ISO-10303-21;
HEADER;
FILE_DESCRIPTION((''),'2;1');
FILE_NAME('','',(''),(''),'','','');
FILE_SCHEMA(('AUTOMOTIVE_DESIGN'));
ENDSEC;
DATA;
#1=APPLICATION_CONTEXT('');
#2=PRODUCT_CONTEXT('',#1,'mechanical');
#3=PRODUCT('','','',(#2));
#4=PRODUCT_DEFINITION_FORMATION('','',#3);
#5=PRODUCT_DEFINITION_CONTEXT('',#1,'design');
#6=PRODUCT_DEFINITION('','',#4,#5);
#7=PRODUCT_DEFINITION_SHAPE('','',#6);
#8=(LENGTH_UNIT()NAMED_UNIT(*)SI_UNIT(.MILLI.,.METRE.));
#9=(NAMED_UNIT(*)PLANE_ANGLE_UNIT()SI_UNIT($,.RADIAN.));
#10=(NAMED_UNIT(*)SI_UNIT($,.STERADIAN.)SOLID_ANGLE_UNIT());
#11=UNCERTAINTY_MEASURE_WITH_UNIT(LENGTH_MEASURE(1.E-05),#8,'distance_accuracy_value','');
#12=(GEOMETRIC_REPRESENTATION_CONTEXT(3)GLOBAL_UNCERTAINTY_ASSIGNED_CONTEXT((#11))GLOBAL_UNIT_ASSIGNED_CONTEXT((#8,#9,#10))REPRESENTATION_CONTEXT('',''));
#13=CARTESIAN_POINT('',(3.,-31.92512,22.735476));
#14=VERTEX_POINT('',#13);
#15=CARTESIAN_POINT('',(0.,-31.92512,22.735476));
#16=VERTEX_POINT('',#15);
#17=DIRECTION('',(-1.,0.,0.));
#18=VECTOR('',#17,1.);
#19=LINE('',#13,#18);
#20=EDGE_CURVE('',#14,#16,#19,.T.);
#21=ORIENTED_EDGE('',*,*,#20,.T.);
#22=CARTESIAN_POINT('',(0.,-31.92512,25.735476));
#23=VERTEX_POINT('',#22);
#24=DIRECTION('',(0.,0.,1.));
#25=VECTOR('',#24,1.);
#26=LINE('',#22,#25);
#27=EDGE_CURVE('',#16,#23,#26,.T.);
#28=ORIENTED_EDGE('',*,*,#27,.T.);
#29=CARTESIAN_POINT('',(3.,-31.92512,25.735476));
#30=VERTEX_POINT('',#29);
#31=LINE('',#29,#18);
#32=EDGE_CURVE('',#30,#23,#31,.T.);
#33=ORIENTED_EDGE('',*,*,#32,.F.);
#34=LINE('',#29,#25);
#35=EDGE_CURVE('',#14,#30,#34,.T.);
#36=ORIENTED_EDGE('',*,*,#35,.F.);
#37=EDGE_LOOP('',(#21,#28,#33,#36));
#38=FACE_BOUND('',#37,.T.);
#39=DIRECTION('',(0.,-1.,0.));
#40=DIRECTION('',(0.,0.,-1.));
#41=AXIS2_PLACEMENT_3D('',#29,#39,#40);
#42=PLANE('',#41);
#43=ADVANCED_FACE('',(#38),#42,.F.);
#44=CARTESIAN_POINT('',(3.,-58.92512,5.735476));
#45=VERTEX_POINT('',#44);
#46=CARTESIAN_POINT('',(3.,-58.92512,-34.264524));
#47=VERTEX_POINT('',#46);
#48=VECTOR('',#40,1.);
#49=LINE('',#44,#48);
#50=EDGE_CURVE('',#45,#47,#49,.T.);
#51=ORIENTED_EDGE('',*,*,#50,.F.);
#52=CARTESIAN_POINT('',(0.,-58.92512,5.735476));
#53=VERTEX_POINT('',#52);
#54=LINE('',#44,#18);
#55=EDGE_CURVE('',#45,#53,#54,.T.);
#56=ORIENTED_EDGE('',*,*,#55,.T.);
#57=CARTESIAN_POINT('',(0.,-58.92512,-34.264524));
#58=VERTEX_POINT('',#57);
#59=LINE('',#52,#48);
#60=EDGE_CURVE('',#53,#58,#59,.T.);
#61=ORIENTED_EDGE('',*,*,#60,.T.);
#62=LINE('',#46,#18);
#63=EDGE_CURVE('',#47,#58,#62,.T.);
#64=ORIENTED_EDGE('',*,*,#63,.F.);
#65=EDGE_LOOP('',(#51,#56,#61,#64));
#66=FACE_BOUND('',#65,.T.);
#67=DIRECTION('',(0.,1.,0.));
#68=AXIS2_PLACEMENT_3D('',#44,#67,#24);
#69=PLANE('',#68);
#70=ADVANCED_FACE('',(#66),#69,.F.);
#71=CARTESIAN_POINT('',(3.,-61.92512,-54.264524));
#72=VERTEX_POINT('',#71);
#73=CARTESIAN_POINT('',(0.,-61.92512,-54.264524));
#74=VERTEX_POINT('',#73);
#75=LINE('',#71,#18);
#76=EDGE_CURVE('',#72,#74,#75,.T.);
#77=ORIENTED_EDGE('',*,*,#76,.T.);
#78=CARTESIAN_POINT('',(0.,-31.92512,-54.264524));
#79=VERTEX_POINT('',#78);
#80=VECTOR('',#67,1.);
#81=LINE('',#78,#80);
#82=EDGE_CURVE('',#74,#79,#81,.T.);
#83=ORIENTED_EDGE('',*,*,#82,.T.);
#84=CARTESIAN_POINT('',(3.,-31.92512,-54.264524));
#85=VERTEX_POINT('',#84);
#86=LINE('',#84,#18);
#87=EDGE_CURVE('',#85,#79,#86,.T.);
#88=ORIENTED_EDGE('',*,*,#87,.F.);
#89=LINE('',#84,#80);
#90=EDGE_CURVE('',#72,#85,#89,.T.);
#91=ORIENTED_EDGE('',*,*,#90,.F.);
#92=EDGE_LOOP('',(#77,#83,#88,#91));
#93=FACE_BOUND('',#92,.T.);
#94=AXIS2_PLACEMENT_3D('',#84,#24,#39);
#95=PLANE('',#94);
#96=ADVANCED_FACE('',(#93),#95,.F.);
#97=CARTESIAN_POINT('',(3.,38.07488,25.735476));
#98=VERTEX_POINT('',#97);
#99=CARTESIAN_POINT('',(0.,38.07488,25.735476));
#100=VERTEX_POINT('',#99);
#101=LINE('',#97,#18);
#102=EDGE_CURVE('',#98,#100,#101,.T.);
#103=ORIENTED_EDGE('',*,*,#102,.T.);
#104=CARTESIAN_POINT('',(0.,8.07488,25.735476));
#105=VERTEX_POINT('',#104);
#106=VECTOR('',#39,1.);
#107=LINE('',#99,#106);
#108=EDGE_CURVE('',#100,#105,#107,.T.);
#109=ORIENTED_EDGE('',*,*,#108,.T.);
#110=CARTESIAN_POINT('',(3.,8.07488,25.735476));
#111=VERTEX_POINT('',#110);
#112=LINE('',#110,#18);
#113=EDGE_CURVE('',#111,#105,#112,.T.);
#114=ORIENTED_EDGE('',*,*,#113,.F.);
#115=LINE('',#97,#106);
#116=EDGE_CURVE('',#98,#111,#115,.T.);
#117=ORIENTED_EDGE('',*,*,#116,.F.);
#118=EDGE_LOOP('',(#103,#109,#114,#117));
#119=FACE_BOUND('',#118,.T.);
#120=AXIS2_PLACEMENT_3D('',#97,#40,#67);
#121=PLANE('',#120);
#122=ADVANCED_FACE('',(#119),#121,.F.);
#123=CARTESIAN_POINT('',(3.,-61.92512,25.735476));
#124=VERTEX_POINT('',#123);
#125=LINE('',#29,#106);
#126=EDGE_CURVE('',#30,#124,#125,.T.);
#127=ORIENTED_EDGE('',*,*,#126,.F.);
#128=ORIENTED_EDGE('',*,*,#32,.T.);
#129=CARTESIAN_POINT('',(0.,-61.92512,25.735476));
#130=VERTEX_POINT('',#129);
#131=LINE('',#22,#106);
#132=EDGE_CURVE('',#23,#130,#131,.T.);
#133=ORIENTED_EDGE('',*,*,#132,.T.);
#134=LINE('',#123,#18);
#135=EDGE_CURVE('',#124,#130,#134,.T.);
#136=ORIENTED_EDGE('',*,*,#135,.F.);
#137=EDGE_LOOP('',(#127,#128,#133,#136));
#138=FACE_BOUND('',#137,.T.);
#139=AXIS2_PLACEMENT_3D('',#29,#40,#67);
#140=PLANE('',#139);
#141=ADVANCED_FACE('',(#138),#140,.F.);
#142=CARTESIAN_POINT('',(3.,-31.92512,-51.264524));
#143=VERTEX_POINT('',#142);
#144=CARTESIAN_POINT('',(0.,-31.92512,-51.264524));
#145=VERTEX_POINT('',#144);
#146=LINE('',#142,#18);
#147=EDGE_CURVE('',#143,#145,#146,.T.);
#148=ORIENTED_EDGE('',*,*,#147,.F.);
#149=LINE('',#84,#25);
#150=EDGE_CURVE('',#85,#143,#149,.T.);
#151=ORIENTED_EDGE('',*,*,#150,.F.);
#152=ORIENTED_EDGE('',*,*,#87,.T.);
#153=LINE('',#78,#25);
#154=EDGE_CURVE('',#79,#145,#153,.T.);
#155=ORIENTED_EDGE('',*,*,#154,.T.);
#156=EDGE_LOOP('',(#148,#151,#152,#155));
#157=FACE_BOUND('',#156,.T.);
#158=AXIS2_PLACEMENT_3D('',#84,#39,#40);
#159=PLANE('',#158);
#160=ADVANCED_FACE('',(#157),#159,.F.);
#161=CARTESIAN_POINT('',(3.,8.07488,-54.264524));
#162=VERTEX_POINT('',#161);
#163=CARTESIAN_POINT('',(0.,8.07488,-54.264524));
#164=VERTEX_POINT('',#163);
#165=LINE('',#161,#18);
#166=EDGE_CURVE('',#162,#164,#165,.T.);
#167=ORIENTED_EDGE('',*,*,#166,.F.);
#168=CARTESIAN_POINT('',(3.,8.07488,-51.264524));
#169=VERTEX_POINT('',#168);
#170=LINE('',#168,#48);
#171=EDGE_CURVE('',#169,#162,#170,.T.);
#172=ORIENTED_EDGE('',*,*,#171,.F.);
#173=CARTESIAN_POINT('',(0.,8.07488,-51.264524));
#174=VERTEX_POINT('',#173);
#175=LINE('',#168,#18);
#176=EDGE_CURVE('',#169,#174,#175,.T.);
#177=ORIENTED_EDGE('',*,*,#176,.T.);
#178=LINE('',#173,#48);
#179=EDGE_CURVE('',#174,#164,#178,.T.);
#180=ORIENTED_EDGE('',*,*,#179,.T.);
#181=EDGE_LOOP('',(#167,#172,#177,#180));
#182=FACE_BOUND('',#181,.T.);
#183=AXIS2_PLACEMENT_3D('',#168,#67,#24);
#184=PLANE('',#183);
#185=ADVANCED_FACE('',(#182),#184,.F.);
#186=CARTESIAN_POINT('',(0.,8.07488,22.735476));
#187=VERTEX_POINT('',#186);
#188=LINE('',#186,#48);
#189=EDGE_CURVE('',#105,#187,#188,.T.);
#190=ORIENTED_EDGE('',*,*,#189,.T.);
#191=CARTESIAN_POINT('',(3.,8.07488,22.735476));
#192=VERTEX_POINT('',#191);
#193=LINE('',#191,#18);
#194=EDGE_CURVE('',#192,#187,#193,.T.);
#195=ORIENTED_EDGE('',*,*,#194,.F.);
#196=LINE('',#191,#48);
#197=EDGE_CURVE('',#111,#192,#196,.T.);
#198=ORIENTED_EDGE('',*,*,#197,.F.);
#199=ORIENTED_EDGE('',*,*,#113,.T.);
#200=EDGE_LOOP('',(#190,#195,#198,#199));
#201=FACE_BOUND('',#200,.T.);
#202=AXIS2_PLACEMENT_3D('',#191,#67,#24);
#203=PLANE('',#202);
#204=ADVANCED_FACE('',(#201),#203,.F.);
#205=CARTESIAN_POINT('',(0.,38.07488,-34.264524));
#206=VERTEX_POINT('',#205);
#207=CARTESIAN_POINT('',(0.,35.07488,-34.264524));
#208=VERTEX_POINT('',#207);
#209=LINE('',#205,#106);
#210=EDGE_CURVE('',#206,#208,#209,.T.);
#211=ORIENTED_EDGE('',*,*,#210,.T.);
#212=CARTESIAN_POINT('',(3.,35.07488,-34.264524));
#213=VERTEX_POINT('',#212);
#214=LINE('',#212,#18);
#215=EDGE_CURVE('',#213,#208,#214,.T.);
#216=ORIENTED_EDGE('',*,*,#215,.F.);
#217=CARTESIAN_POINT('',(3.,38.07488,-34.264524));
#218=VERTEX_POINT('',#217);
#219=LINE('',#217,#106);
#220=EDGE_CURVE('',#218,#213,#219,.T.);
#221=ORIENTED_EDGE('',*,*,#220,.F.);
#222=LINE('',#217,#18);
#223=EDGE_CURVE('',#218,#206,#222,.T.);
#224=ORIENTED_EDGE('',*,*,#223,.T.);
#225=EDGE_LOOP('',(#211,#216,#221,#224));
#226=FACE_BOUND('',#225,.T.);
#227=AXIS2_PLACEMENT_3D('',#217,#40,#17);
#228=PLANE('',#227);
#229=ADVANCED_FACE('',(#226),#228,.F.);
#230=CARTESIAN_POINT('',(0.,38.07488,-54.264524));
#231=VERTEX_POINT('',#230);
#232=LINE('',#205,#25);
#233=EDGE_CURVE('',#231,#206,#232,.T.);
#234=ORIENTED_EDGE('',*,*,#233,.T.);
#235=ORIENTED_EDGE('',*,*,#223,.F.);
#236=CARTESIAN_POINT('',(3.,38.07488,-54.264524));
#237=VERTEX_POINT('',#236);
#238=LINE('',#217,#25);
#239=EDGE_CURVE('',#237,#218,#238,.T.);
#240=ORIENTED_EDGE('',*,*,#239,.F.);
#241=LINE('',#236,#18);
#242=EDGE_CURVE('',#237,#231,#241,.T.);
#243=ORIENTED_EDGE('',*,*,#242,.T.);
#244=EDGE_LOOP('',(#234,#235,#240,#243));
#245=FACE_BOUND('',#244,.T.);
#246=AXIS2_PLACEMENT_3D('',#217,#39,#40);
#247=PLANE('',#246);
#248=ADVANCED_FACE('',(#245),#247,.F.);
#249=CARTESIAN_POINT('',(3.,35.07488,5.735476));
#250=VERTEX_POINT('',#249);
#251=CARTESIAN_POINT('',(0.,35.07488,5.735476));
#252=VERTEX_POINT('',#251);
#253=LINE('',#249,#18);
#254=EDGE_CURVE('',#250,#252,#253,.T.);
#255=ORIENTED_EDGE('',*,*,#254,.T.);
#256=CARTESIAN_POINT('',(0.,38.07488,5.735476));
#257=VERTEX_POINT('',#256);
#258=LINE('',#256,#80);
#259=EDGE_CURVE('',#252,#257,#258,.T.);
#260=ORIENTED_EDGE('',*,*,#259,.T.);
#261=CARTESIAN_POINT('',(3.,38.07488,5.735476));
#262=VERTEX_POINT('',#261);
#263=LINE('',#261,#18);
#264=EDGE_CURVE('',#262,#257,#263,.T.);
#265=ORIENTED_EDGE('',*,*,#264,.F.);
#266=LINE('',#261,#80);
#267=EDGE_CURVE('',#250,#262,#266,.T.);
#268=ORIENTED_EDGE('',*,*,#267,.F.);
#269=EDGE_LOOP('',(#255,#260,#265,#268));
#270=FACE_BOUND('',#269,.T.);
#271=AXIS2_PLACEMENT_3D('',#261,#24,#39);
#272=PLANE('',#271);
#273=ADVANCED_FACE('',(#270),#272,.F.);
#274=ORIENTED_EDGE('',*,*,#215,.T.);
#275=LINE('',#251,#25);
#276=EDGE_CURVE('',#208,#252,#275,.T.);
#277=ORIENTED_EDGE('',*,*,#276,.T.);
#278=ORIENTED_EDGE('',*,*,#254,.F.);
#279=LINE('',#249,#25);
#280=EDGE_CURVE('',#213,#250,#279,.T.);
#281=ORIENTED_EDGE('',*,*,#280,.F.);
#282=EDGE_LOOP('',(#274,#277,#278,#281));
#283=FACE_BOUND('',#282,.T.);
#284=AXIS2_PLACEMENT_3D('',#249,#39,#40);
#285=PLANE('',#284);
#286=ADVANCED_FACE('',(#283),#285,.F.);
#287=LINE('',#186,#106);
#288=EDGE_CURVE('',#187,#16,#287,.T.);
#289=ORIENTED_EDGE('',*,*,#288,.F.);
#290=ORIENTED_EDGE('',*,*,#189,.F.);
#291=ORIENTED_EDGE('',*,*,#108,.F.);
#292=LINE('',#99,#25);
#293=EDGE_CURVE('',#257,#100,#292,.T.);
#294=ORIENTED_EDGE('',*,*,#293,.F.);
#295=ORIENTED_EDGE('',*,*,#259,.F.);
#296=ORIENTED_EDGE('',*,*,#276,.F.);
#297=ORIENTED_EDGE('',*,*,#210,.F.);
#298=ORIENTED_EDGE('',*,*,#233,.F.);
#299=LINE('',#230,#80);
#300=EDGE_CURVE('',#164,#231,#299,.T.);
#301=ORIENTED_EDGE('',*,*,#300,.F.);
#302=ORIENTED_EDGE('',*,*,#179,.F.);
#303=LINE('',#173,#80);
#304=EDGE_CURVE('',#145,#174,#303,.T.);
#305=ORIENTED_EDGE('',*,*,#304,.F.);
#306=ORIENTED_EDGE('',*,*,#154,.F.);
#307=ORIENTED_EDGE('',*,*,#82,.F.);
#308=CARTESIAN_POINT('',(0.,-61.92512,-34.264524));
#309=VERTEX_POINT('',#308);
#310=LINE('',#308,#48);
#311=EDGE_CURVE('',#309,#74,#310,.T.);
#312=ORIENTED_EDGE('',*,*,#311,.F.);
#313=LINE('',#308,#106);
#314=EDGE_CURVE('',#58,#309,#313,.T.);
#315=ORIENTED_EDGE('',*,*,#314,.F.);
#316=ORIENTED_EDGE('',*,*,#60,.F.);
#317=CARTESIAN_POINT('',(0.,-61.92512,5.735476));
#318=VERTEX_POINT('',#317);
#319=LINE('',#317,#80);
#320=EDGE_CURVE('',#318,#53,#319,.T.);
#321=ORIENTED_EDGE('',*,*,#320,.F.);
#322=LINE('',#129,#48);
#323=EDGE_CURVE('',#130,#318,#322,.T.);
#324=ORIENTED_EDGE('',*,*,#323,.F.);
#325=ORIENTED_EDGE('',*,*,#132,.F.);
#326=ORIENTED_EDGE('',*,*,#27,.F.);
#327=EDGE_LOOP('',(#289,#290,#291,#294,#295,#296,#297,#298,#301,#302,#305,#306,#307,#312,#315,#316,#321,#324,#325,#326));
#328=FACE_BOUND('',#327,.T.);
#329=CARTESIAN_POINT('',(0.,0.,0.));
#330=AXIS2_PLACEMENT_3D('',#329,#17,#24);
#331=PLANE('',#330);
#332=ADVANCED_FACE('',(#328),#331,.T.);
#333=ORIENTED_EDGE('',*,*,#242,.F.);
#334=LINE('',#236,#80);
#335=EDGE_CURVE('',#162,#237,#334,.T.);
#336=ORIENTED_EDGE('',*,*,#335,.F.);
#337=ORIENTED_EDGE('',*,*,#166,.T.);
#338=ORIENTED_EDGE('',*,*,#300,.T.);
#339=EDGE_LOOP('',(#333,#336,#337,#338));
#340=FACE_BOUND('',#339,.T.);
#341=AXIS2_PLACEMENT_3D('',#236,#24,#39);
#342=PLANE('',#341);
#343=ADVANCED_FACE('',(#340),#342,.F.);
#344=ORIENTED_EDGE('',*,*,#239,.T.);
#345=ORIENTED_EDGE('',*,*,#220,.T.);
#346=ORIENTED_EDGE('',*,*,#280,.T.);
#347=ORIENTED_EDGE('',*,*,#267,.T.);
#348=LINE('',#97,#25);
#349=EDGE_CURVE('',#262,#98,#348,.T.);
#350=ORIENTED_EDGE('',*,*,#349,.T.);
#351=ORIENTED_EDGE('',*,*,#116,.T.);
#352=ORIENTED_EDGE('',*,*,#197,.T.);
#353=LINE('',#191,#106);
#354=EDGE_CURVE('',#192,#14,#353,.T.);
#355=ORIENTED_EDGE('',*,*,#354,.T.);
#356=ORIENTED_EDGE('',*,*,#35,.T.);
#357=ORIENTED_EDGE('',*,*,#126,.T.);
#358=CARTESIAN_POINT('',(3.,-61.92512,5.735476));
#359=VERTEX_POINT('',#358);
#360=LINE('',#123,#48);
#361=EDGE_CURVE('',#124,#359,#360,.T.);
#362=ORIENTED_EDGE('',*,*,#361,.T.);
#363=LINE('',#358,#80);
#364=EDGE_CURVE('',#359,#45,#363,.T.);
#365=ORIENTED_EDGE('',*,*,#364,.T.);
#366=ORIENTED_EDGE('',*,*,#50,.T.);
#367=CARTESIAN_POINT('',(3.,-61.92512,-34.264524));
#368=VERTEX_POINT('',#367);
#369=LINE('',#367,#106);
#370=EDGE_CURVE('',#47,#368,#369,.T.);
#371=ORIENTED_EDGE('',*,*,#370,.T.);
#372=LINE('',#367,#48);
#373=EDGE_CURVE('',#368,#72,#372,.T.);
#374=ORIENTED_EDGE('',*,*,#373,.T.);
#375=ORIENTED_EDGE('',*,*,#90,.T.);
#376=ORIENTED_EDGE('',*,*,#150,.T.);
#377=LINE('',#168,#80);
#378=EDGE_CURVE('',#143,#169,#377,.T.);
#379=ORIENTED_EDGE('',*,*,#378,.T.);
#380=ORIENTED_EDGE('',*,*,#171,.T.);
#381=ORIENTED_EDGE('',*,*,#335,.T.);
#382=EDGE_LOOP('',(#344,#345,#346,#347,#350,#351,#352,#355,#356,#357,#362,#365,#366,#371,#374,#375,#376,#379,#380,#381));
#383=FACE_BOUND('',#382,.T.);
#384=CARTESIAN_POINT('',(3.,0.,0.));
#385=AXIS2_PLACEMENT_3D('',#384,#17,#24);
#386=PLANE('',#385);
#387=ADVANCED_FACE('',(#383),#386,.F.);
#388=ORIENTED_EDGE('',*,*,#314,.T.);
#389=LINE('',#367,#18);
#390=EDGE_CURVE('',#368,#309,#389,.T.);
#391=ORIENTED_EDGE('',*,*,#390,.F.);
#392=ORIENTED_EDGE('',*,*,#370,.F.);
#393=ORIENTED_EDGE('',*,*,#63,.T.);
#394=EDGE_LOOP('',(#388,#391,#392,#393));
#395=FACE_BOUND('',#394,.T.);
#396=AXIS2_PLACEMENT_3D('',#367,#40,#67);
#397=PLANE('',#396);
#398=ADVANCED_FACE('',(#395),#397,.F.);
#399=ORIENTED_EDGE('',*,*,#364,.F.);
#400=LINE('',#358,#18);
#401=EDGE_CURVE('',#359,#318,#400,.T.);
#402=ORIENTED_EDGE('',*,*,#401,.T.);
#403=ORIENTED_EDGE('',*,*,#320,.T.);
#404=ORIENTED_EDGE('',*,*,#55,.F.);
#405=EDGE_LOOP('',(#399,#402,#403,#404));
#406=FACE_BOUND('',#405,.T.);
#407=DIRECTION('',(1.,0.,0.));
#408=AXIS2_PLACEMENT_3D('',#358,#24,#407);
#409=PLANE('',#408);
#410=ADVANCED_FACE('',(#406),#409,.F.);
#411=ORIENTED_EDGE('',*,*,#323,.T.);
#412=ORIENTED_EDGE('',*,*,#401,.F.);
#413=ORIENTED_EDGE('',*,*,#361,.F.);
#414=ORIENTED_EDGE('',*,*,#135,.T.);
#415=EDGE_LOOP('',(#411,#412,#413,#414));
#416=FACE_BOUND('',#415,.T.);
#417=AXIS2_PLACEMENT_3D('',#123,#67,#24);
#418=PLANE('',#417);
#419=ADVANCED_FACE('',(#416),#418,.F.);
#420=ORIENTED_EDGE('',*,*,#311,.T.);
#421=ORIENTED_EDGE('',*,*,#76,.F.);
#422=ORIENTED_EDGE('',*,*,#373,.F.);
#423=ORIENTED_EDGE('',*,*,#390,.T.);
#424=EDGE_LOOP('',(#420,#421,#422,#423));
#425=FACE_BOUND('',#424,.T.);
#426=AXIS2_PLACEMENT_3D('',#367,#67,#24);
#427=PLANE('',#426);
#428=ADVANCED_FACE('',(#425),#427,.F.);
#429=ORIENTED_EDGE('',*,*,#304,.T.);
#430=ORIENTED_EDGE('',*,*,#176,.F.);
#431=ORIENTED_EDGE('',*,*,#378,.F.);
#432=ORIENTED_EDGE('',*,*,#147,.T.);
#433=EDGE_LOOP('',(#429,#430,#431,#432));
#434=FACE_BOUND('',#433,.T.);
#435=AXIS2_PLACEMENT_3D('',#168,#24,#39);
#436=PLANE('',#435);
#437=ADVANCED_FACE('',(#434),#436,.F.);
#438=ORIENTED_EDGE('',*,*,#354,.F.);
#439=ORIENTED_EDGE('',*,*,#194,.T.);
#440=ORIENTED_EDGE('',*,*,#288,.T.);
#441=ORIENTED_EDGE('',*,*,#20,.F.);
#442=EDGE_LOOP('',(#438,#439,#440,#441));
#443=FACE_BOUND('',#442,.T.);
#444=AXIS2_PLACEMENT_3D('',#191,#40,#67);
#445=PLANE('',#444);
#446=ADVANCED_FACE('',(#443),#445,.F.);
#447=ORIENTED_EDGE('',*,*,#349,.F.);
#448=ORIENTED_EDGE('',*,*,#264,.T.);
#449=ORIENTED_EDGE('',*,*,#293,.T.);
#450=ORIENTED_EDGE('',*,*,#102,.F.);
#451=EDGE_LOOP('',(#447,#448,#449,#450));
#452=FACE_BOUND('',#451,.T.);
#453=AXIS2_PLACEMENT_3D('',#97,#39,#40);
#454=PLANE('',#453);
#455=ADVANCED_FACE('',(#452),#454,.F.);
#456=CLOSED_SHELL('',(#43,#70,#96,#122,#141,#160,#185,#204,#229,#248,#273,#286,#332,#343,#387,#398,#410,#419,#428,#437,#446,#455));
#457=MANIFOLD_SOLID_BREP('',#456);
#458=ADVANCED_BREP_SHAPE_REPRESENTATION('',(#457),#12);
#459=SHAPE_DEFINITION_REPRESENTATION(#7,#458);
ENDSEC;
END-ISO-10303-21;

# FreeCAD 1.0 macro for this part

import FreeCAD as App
import Part
import Sketcher

doc = App.newDocument("Part")
body = doc.addObject("PartDesign::Body", "Body")

# Sketch on YZ plane
sketch1 = doc.addObject("Sketcher::SketchObject", "Sketch")
body.addObject(sketch1)
sketch1.AttachmentSupport = (doc.YZ_Plane, [""])
sketch1.MapMode = "FlatFace"
sketch1.addGeometry([
    Part.LineSegment(App.Vector(38.07488, -54.264524, 0), App.Vector(38.07488, -34.264524, 0)),  # 0
    Part.LineSegment(App.Vector(38.07488, -34.264524, 0), App.Vector(35.07488, -34.264524, 0)),  # 1
    Part.LineSegment(App.Vector(35.07488, -34.264524, 0), App.Vector(35.07488, 5.735476, 0)),  # 2
    Part.LineSegment(App.Vector(35.07488, 5.735476, 0), App.Vector(38.07488, 5.735476, 0)),  # 3
    Part.LineSegment(App.Vector(38.07488, 5.735476, 0), App.Vector(38.07488, 25.735476, 0)),  # 4
    Part.LineSegment(App.Vector(38.07488, 25.735476, 0), App.Vector(8.07488, 25.735476, 0)),  # 5
    Part.LineSegment(App.Vector(8.07488, 25.735476, 0), App.Vector(8.07488, 22.735476, 0)),  # 6
    Part.LineSegment(App.Vector(8.07488, 22.735476, 0), App.Vector(-31.92512, 22.735476, 0)),  # 7
    Part.LineSegment(App.Vector(-31.92512, 22.735476, 0), App.Vector(-31.92512, 25.735476, 0)),  # 8
    Part.LineSegment(App.Vector(-31.92512, 25.735476, 0), App.Vector(-61.92512, 25.735476, 0)),  # 9
    Part.LineSegment(App.Vector(-61.92512, 25.735476, 0), App.Vector(-61.92512, 5.735476, 0)),  # 10
    Part.LineSegment(App.Vector(-61.92512, 5.735476, 0), App.Vector(-58.92512, 5.735476, 0)),  # 11
    Part.LineSegment(App.Vector(-58.92512, 5.735476, 0), App.Vector(-58.92512, -34.264524, 0)),  # 12
    Part.LineSegment(App.Vector(-58.92512, -34.264524, 0), App.Vector(-61.92512, -34.264524, 0)),  # 13
    Part.LineSegment(App.Vector(-61.92512, -34.264524, 0), App.Vector(-61.92512, -54.264524, 0)),  # 14
    Part.LineSegment(App.Vector(-61.92512, -54.264524, 0), App.Vector(-31.92512, -54.264524, 0)),  # 15
    Part.LineSegment(App.Vector(-31.92512, -54.264524, 0), App.Vector(-31.92512, -51.264524, 0)),  # 16
    Part.LineSegment(App.Vector(-31.92512, -51.264524, 0), App.Vector(8.07488, -51.264524, 0)),  # 17
    Part.LineSegment(App.Vector(8.07488, -51.264524, 0), App.Vector(8.07488, -54.264524, 0)),  # 18
    Part.LineSegment(App.Vector(8.07488, -54.264524, 0), App.Vector(38.07488, -54.264524, 0)),  # 19
], False)
sketch1.addConstraint([
    Sketcher.Constraint("Coincident", 0, 2, 1, 1),
    Sketcher.Constraint("Coincident", 1, 2, 2, 1),
    Sketcher.Constraint("Coincident", 2, 2, 3, 1),
    Sketcher.Constraint("Coincident", 3, 2, 4, 1),
    Sketcher.Constraint("Coincident", 4, 2, 5, 1),
    Sketcher.Constraint("Coincident", 5, 2, 6, 1),
    Sketcher.Constraint("Coincident", 6, 2, 7, 1),
    Sketcher.Constraint("Coincident", 7, 2, 8, 1),
    Sketcher.Constraint("Coincident", 8, 2, 9, 1),
    Sketcher.Constraint("Coincident", 9, 2, 10, 1),
    Sketcher.Constraint("Coincident", 10, 2, 11, 1),
    Sketcher.Constraint("Coincident", 11, 2, 12, 1),
    Sketcher.Constraint("Coincident", 12, 2, 13, 1),
    Sketcher.Constraint("Coincident", 13, 2, 14, 1),
    Sketcher.Constraint("Coincident", 14, 2, 15, 1),
    Sketcher.Constraint("Coincident", 15, 2, 16, 1),
    Sketcher.Constraint("Coincident", 16, 2, 17, 1),
    Sketcher.Constraint("Coincident", 17, 2, 18, 1),
    Sketcher.Constraint("Coincident", 18, 2, 19, 1),
    Sketcher.Constraint("Coincident", 19, 2, 0, 1),
    Sketcher.Constraint("Vertical", 0),
    Sketcher.Constraint("Horizontal", 1),
    Sketcher.Constraint("Vertical", 2),
    Sketcher.Constraint("Horizontal", 3),
    Sketcher.Constraint("Vertical", 4),
    Sketcher.Constraint("Horizontal", 5),
    Sketcher.Constraint("Vertical", 6),
    Sketcher.Constraint("Horizontal", 7),
    Sketcher.Constraint("Vertical", 8),
    Sketcher.Constraint("Horizontal", 9),
    Sketcher.Constraint("Vertical", 10),
    Sketcher.Constraint("Horizontal", 11),
    Sketcher.Constraint("Vertical", 12),
    Sketcher.Constraint("Horizontal", 13),
    Sketcher.Constraint("Vertical", 14),
    Sketcher.Constraint("Horizontal", 15),
    Sketcher.Constraint("Vertical", 16),
    Sketcher.Constraint("Horizontal", 17),
    Sketcher.Constraint("Vertical", 18),
    Sketcher.Constraint("Horizontal", 19),
    Sketcher.Constraint("Horizontal", 5, 2, 8, 2),
    Sketcher.Constraint("Horizontal", 3, 2, 10, 2),
    Sketcher.Constraint("Horizontal", 1, 2, 12, 2),
    Sketcher.Constraint("Horizontal", 15, 2, 18, 2),
    Sketcher.Constraint("Vertical", 0, 2, 3, 2),
    Sketcher.Constraint("Vertical", 10, 2, 13, 2),
    Sketcher.Constraint("Vertical", 8, 2, 15, 2),
    Sketcher.Constraint("Vertical", 6, 2, 17, 2),
    Sketcher.Constraint("Equal", 5, 9),
    Sketcher.Constraint("Equal", 3, 11),
    Sketcher.Constraint("Equal", 17, 2),
    Sketcher.Constraint("Equal", 0, 4),
    Sketcher.Constraint("Equal", 13, 6),
    Sketcher.Constraint("Equal", 8, 16),
    Sketcher.Constraint("DistanceX", 1, 2, 1, 1, 3.0),
    Sketcher.Constraint("DistanceX", 5, 2, 5, 1, 30.0),
    Sketcher.Constraint("DistanceX", 7, 2, 7, 1, 40.0),
    Sketcher.Constraint("DistanceY", 0, 1, 0, 2, 20.0),
    Sketcher.Constraint("DistanceX", -1, 1, 0, 2, 38.07488),
    Sketcher.Constraint("DistanceY", 0, 2, -1, 1, 34.264524),
])
pad1 = doc.addObject("PartDesign::Pad", "Pad")
body.addObject(pad1)
pad1.Profile = sketch1
pad1.Length = 3

doc.recompute()
